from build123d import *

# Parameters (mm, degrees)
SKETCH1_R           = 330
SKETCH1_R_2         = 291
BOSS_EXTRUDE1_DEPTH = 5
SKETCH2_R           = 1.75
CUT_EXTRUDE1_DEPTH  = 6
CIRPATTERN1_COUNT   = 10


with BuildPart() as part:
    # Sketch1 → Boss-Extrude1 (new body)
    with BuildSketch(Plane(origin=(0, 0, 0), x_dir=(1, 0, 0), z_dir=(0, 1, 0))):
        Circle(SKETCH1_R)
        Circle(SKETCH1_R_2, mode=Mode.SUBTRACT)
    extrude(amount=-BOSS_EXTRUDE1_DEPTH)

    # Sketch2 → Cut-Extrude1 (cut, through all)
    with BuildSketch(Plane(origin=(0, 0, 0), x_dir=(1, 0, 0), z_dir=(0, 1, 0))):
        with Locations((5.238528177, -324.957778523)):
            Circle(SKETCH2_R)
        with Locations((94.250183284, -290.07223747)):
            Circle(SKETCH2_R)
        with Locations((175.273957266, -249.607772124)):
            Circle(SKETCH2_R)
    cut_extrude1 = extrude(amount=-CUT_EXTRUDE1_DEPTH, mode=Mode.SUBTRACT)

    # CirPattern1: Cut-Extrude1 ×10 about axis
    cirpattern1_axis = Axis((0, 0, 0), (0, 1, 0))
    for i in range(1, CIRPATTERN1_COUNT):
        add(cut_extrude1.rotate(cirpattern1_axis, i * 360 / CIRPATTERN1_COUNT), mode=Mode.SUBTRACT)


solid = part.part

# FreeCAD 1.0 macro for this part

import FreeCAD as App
import Part
import Sketcher

V = App.Vector

doc = App.newDocument("Part")
body = doc.addObject("PartDesign::Body", "Body")

# Sketch on XZ plane
sketch1 = body.newObject("Sketcher::SketchObject", "Sketch")
sketch1.AttachmentSupport = (doc.getObject("XZ_Plane"), [""])
sketch1.MapMode = "FlatFace"
sketch1.addGeometry(Part.Circle(V(0, 0, 0), V(0, 0, 1), 330), False)
sketch1.addGeometry(Part.Circle(V(0, 0, 0), V(0, 0, 1), 291), False)
sketch1.addConstraint(Sketcher.Constraint("Coincident", 0, 3, -1, 1))
sketch1.addConstraint(Sketcher.Constraint("Coincident", 1, 3, -1, 1))
sketch1.addConstraint(Sketcher.Constraint("Diameter", 0, 660.0))
sketch1.addConstraint(Sketcher.Constraint("Diameter", 1, 582.0))
pad1 = body.newObject("PartDesign::Pad", "Pad")
pad1.Profile = sketch1
pad1.Length = 5

# Sketch on XZ plane
sketch2 = body.newObject("Sketcher::SketchObject", "Sketch001")
sketch2.AttachmentSupport = (doc.getObject("XZ_Plane"), [""])
sketch2.MapMode = "FlatFace"
sketch2.addGeometry(Part.Circle(V(5.2, 325, 0), V(0, 0, 1), 1.8), False)
sketch2.addGeometry(Part.Circle(V(94.3, 290.1, 0), V(0, 0, 1), 1.8), False)
sketch2.addGeometry(Part.Circle(V(175.3, 249.6, 0), V(0, 0, 1), 1.8), False)
sketch2.addConstraint(Sketcher.Constraint("Equal", 0, 1))
sketch2.addConstraint(Sketcher.Constraint("Equal", 1, 2))
sketch2.addConstraint(Sketcher.Constraint("Diameter", 0, 3.5))
sketch2.addConstraint(Sketcher.Constraint("DistanceX", -1, 1, 0, 3, 5.238528))
sketch2.addConstraint(Sketcher.Constraint("DistanceY", -1, 1, 0, 3, 324.957779))
sketch2.addConstraint(Sketcher.Constraint("DistanceY", 1, 3, 0, 3, 34.885541))
sketch2.addConstraint(Sketcher.Constraint("DistanceX", 0, 3, 2, 3, 170.035429))
sketch2.addConstraint(Sketcher.Constraint("DistanceX", -1, 1, 1, 3, 94.250183))
sketch2.addConstraint(Sketcher.Constraint("DistanceY", -1, 1, 2, 3, 249.607772))
pocket1 = body.newObject("PartDesign::Pocket", "Pocket")
pocket1.Profile = sketch2
pocket1.Type = "ThroughAll"
pocket1.Reversed = True
doc.recompute()

polarpattern = body.newObject("PartDesign::PolarPattern", "PolarPattern")
polarpattern.Originals = [pocket1]
polarpattern.Axis = (doc.getObject("Y_Axis"), [""])
polarpattern.Angle = 360
polarpattern.Occurrences = 10
body.Tip = polarpattern

doc.recompute()
